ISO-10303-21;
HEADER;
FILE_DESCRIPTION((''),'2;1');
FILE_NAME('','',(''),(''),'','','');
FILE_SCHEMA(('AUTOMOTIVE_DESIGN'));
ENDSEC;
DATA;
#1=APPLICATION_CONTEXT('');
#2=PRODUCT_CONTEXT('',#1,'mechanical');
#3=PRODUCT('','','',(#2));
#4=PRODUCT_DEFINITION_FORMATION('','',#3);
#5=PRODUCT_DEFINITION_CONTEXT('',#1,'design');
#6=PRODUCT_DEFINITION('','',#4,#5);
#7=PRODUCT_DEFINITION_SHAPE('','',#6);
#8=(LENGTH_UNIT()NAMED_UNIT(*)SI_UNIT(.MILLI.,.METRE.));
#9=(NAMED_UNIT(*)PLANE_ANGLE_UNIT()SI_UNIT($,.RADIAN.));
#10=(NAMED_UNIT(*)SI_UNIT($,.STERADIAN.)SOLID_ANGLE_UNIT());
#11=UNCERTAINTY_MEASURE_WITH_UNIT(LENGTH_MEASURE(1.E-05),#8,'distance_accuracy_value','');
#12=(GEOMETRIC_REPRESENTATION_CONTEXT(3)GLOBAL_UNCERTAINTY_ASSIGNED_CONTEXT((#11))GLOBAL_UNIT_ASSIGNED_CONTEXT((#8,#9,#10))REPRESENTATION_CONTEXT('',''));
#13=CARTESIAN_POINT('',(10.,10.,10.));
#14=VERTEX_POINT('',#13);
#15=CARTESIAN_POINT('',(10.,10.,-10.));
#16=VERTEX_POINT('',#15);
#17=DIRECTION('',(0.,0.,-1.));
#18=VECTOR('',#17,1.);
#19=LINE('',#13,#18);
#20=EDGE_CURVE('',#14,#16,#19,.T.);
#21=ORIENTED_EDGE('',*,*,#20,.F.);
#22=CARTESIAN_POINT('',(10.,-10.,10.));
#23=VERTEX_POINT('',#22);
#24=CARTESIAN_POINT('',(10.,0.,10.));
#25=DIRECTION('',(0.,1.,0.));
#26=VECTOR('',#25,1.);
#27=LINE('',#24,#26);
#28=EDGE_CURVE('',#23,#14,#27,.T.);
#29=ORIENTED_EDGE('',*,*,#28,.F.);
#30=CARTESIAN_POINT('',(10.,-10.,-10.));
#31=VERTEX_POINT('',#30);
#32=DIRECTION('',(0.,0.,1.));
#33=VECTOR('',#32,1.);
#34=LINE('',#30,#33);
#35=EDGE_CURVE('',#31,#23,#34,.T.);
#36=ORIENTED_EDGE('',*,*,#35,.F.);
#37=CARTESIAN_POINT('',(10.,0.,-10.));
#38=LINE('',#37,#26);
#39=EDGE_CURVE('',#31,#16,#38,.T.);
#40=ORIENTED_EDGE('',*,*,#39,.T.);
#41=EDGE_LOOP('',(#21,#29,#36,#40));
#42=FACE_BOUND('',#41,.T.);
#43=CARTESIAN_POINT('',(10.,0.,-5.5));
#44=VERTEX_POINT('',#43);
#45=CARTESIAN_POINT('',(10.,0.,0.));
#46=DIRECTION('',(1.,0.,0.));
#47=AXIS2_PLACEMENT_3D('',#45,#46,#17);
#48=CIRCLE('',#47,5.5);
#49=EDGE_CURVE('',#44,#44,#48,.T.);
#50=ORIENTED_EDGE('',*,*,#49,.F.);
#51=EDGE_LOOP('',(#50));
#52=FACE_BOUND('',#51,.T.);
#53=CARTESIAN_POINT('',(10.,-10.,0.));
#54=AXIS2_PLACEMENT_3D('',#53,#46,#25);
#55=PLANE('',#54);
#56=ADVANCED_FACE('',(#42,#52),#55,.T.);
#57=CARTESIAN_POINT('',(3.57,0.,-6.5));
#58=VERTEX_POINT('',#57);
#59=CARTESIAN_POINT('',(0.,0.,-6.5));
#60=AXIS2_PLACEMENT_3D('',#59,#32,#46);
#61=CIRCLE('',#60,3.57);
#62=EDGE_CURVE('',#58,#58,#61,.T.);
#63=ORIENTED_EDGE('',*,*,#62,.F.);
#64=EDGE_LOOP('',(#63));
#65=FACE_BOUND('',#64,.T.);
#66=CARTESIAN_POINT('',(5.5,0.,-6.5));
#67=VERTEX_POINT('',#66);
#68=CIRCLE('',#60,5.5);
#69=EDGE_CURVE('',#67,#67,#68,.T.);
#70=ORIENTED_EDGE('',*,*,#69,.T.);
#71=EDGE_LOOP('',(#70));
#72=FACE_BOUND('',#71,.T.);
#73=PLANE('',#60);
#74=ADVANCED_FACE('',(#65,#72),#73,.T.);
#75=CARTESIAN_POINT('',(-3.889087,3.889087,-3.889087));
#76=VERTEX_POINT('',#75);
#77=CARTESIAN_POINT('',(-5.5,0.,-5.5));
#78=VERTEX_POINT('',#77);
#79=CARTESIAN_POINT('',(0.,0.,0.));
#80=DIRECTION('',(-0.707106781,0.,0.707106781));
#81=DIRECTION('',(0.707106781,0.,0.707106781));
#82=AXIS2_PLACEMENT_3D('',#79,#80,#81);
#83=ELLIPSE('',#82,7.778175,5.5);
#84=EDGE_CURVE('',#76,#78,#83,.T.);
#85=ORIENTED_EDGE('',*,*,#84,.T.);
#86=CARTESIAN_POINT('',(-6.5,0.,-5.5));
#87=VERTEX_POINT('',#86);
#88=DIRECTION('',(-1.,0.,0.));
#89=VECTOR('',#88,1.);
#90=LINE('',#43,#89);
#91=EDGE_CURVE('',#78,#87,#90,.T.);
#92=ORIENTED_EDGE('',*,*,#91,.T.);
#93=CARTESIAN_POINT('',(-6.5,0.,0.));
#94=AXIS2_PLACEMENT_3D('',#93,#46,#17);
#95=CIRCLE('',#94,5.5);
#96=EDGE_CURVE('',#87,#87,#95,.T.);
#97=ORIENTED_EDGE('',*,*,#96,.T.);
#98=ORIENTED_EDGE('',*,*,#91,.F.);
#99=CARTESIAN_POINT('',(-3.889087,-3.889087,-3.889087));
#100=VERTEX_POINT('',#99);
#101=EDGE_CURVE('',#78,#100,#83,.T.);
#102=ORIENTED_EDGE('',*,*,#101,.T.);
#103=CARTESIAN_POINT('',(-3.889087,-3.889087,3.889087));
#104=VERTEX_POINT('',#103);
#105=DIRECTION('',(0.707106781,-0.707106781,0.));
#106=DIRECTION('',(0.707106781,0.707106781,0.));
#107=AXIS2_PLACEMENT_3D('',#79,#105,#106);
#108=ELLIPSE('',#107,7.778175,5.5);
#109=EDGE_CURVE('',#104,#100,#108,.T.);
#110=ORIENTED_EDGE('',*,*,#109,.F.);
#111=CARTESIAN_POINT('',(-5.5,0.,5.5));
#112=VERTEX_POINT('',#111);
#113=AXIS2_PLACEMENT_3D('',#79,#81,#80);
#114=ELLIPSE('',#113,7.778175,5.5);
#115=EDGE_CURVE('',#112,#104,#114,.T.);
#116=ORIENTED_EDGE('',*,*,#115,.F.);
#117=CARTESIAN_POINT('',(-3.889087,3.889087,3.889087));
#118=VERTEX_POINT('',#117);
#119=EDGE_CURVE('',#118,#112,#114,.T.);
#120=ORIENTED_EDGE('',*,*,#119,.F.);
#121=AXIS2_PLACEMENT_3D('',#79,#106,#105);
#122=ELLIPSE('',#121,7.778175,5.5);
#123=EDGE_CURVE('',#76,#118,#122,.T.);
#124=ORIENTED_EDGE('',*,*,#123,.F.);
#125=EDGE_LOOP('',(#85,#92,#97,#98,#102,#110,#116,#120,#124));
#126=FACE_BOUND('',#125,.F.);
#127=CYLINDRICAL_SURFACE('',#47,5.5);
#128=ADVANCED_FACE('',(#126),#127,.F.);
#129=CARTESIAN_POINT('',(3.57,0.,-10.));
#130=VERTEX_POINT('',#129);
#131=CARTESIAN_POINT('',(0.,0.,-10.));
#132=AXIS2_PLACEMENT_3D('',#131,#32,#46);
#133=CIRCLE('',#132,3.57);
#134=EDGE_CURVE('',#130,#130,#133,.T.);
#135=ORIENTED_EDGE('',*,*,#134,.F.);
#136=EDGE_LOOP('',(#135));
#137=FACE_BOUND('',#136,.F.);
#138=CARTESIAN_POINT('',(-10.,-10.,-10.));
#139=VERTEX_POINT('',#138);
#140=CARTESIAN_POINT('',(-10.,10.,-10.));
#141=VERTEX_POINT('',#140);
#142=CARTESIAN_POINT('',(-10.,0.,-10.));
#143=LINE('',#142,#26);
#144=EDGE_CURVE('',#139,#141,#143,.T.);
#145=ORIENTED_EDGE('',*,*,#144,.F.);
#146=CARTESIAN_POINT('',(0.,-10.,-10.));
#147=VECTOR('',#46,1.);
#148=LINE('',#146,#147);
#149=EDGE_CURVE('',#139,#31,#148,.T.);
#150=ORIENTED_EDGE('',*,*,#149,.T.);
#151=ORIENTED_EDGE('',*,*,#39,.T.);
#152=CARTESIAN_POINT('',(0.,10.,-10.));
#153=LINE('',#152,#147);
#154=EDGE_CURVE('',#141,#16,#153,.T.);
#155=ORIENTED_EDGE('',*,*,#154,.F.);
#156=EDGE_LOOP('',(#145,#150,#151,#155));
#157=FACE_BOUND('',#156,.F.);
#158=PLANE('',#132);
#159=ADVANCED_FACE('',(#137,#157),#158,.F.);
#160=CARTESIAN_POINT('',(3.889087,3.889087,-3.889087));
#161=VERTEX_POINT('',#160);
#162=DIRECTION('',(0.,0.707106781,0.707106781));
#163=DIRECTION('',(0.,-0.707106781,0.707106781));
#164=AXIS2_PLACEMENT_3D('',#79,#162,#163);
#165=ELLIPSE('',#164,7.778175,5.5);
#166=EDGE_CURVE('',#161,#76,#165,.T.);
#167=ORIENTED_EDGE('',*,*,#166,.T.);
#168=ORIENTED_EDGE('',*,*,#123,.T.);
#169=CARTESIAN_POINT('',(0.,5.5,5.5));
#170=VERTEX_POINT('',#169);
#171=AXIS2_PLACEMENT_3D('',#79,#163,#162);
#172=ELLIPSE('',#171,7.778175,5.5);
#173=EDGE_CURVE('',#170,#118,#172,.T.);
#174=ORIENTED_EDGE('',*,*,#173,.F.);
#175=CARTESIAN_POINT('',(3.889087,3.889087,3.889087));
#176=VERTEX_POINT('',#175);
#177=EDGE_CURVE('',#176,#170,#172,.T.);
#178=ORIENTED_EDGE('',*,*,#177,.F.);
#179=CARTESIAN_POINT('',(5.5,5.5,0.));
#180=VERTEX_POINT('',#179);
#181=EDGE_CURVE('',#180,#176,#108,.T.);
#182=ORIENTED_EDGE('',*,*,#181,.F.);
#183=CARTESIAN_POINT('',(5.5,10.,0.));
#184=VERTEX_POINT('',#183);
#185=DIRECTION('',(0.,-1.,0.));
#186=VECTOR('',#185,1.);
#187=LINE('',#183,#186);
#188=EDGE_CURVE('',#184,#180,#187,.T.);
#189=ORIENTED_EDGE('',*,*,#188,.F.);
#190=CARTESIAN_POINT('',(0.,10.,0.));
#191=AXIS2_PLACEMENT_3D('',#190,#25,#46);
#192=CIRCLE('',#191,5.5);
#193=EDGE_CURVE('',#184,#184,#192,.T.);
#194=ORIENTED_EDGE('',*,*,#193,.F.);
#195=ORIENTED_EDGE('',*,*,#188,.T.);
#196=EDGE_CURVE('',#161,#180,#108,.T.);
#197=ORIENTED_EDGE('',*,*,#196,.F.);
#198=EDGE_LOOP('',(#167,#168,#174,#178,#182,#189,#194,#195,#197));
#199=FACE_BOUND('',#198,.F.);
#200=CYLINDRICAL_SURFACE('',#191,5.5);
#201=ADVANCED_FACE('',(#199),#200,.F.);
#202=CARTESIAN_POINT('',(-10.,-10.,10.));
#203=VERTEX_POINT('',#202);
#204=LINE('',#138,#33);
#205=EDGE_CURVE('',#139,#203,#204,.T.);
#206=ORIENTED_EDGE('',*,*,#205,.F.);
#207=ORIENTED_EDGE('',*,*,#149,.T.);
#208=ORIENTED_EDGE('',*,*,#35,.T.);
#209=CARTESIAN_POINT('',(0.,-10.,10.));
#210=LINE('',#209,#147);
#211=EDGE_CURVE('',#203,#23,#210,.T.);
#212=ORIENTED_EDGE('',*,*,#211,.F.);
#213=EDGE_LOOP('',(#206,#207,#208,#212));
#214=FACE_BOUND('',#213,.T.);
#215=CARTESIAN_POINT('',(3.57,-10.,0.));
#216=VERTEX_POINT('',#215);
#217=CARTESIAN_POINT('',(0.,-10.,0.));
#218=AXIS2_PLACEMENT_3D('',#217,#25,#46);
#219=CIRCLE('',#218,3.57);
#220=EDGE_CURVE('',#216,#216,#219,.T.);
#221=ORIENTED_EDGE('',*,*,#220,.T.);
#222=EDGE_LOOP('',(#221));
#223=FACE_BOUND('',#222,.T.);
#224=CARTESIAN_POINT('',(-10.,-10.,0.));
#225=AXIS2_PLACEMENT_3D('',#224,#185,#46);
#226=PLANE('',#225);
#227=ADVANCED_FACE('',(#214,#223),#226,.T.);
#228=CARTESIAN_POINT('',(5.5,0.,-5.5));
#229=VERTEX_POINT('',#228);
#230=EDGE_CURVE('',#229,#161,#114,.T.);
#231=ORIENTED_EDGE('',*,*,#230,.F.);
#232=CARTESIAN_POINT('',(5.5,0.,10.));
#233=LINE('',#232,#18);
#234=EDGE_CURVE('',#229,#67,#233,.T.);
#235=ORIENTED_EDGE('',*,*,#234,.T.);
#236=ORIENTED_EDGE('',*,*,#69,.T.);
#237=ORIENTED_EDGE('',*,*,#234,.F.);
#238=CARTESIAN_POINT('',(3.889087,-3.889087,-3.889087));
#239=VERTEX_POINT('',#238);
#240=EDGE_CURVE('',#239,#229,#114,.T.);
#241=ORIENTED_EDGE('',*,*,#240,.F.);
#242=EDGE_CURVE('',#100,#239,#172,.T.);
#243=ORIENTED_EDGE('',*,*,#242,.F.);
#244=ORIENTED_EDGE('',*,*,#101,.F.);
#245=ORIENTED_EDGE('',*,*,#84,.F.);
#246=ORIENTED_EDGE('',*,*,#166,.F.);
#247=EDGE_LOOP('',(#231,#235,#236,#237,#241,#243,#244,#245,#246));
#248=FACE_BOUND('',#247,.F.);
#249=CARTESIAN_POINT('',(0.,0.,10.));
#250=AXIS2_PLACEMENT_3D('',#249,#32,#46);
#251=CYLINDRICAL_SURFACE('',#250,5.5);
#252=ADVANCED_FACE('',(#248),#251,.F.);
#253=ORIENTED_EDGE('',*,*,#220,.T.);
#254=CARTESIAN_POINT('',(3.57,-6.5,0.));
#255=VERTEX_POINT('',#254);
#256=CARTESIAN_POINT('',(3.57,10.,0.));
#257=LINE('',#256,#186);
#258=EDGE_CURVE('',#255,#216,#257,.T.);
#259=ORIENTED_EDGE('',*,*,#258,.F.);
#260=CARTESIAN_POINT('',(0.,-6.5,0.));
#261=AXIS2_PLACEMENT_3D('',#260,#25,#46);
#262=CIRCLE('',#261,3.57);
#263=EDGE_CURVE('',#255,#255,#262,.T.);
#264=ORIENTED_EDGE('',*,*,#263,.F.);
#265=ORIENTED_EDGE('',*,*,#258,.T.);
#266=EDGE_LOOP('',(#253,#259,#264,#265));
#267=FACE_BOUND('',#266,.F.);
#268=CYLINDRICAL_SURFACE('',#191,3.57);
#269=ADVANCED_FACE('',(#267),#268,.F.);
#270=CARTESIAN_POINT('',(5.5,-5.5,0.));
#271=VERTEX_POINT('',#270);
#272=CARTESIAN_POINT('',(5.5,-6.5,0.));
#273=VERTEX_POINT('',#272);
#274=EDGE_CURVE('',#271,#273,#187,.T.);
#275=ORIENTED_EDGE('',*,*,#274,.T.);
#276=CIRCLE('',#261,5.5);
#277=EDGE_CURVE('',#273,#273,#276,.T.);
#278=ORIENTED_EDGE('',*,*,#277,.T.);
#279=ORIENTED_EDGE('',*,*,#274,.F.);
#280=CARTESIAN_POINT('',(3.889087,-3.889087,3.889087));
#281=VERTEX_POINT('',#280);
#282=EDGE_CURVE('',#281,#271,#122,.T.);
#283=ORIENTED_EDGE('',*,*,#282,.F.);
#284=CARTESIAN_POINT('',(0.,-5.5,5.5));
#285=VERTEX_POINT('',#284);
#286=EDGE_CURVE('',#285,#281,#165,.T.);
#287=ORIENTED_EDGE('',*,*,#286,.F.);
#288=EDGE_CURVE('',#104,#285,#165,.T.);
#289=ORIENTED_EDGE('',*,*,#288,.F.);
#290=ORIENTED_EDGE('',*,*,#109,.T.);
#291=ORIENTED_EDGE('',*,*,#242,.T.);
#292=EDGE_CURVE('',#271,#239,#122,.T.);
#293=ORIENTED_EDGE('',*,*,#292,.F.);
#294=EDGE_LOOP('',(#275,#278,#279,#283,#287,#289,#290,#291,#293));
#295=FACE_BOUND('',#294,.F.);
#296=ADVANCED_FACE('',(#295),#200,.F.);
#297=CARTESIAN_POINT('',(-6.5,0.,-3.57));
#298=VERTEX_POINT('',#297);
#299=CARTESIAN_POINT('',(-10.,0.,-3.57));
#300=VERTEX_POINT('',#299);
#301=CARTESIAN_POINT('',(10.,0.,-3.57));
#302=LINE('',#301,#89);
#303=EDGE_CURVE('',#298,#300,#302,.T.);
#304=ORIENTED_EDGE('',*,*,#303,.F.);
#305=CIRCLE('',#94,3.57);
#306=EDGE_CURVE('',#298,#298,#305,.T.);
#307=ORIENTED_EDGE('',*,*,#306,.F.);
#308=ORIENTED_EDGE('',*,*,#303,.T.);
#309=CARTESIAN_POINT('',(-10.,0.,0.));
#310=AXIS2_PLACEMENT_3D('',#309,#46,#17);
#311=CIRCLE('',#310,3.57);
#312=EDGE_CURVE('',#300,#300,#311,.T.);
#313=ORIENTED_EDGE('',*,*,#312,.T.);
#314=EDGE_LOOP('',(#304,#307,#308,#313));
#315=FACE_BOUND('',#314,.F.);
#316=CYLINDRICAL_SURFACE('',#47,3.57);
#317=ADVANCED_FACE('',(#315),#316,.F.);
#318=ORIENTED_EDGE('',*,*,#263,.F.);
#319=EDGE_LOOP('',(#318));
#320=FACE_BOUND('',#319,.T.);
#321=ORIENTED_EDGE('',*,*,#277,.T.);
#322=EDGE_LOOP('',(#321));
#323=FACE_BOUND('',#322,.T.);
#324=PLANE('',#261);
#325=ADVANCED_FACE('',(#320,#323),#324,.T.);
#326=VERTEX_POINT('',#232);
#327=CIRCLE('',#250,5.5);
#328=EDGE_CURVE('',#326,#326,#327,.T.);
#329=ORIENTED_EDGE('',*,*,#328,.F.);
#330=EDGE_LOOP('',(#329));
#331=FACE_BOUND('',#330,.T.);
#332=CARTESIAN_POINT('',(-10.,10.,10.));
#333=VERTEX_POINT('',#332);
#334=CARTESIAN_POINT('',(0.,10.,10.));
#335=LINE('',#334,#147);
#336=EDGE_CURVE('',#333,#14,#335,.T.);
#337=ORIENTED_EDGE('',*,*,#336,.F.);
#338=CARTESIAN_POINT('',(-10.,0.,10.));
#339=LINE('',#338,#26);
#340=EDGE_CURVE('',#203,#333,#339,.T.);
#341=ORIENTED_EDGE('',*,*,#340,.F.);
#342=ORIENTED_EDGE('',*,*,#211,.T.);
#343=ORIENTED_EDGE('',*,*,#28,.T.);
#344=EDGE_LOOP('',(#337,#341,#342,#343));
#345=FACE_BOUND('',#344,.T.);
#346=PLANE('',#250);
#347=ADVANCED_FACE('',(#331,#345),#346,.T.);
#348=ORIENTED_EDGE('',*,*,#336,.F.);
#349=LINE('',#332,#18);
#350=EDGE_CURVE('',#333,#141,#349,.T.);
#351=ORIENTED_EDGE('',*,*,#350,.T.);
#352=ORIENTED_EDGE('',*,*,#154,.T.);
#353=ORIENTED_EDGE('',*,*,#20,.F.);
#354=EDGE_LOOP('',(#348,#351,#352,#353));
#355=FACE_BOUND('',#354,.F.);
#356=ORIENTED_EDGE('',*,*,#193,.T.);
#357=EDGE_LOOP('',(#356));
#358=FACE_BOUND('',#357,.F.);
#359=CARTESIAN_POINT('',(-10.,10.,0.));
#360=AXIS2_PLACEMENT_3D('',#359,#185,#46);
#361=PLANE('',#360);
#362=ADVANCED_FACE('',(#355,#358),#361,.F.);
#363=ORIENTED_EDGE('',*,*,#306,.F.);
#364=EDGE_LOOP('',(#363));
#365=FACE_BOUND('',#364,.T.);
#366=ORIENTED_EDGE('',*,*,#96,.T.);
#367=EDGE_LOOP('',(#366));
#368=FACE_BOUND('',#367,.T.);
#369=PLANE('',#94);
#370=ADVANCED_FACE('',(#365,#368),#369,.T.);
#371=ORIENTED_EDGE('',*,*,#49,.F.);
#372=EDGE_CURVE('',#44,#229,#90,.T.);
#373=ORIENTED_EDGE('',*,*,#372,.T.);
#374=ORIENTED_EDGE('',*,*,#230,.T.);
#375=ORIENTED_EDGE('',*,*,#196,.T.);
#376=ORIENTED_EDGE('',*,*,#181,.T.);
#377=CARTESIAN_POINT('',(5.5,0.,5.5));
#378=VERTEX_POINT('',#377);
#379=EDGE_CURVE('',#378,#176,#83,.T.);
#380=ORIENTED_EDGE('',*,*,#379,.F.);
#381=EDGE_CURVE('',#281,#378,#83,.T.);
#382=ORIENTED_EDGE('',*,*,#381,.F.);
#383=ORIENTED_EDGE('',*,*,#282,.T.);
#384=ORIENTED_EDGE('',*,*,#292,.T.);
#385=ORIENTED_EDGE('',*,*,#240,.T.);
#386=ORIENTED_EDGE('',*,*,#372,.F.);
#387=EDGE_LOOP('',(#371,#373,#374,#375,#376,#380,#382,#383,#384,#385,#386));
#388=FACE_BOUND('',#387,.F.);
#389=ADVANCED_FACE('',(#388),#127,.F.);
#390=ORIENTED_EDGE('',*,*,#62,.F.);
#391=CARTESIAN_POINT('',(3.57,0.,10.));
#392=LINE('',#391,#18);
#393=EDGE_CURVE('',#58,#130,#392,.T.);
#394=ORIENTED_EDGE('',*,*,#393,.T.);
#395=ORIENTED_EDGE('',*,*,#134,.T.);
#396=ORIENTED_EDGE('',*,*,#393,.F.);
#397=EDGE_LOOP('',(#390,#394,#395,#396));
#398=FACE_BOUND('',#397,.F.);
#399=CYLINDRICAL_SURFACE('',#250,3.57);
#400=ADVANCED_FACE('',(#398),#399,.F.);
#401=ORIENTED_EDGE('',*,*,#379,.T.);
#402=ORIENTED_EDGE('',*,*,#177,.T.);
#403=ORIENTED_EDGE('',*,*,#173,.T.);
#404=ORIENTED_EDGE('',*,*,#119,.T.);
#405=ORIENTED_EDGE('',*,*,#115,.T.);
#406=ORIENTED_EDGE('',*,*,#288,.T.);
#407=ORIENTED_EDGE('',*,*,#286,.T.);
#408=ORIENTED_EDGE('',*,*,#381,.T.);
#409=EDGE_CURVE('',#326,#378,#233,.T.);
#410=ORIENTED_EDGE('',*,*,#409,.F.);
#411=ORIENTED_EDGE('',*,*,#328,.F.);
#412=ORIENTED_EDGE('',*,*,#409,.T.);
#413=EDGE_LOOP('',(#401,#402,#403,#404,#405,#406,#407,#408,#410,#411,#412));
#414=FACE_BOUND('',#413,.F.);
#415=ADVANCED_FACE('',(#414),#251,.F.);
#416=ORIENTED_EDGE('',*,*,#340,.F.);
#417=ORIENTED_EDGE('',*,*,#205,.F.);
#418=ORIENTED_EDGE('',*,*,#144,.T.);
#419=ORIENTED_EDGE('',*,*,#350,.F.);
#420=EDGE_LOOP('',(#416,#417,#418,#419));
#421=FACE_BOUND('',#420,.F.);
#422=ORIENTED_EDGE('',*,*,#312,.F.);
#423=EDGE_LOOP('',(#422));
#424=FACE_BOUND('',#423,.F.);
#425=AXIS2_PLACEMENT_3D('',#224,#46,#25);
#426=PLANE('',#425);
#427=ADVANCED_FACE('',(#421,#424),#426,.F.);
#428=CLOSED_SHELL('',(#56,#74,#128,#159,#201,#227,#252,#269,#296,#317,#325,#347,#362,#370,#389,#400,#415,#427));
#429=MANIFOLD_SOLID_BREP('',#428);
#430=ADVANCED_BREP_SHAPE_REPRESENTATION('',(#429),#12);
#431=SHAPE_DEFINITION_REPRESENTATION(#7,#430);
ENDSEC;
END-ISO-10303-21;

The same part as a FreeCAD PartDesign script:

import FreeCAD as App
import Part
import Sketcher

doc = App.newDocument("Part")
body = doc.addObject("PartDesign::Body", "Body")

# Sketch on XY plane
sketch1 = body.newObject("Sketcher::SketchObject", "Sketch")
sketch1.AttachmentSupport = (doc.getObject("XY_Plane"), [""])
sketch1.MapMode = "FlatFace"
sketch1.addGeometry([
    Part.LineSegment(App.Vector(-10, 10, 0), App.Vector(-10, -10, 0)),
    Part.LineSegment(App.Vector(-10, -10, 0), App.Vector(10, -10, 0)),
    Part.LineSegment(App.Vector(10, -10, 0), App.Vector(10, 10, 0)),
    Part.LineSegment(App.Vector(10, 10, 0), App.Vector(-10, 10, 0)),
], False)
sketch1.addConstraint([
    Sketcher.Constraint("Coincident", 0, 2, 1, 1),
    Sketcher.Constraint("Coincident", 1, 2, 2, 1),
    Sketcher.Constraint("Coincident", 2, 2, 3, 1),
    Sketcher.Constraint("Coincident", 3, 2, 0, 1),
    Sketcher.Constraint("Vertical", 0),
    Sketcher.Constraint("Horizontal", 1),
    Sketcher.Constraint("Vertical", 2),
    Sketcher.Constraint("Horizontal", 3),
    Sketcher.Constraint("Symmetric", 0, 2, 2, 2, -1, 1),
    Sketcher.Constraint("Equal", 3, 0),
    Sketcher.Constraint("DistanceX", 1, 1, 1, 2, 20.0),
])
pad1 = body.newObject("PartDesign::Pad", "Pad")
pad1.Profile = sketch1
pad1.Length = 20
pad1.Midplane = True

# Sketch on XY plane
sketch2 = body.newObject("Sketcher::SketchObject", "Sketch001")
sketch2.AttachmentSupport = (doc.getObject("XY_Plane"), [""])
sketch2.MapMode = "FlatFace"
sketch2.AttachmentOffset = App.Placement(App.Vector(0, 0, 10), App.Rotation())
sketch2.addGeometry(Part.Circle(App.Vector(0, 0, 0), App.Vector(0, 0, 1), 3.57), False)
sketch2.addConstraint([
    Sketcher.Constraint("Coincident", 0, 3, -1, 1),
    Sketcher.Constraint("Diameter", 0, 7.14),
])
pocket1 = body.newObject("PartDesign::Pocket", "Pocket")
pocket1.Profile = sketch2
pocket1.Type = "ThroughAll"

# Sketch on XY plane
sketch3 = body.newObject("Sketcher::SketchObject", "Sketch002")
sketch3.AttachmentSupport = (doc.getObject("XY_Plane"), [""])
sketch3.MapMode = "FlatFace"
sketch3.AttachmentOffset = App.Placement(App.Vector(0, 0, 10), App.Rotation())
sketch3.addGeometry(Part.Circle(App.Vector(0, 0, 0), App.Vector(0, 0, 1), 5.5), False)
sketch3.addConstraint([
    Sketcher.Constraint("Coincident", 0, 3, -1, 1),
    Sketcher.Constraint("Diameter", 0, 11.0),
])
pocket2 = body.newObject("PartDesign::Pocket", "Pocket001")
pocket2.Profile = sketch3
pocket2.Length = 16.5

# Sketch on YZ plane
sketch4 = body.newObject("Sketcher::SketchObject", "Sketch003")
sketch4.AttachmentSupport = (doc.getObject("YZ_Plane"), [""])
sketch4.MapMode = "FlatFace"
sketch4.AttachmentOffset = App.Placement(App.Vector(0, 0, 10), App.Rotation())
sketch4.addGeometry(Part.Circle(App.Vector(0, 0, 0), App.Vector(0, 0, 1), 3.57), False)
sketch4.addConstraint([
    Sketcher.Constraint("Coincident", 0, 3, -1, 1),
    Sketcher.Constraint("Diameter", 0, 7.14),
])
pocket3 = body.newObject("PartDesign::Pocket", "Pocket002")
pocket3.Profile = sketch4
pocket3.Type = "ThroughAll"

# Sketch on YZ plane
sketch5 = body.newObject("Sketcher::SketchObject", "Sketch004")
sketch5.AttachmentSupport = (doc.getObject("YZ_Plane"), [""])
sketch5.MapMode = "FlatFace"
sketch5.AttachmentOffset = App.Placement(App.Vector(0, 0, 10), App.Rotation())
sketch5.addGeometry(Part.Circle(App.Vector(0, 0, 0), App.Vector(0, 0, 1), 5.5), False)
sketch5.addConstraint([
    Sketcher.Constraint("Coincident", 0, 3, -1, 1),
    Sketcher.Constraint("Diameter", 0, 11.0),
])
pocket4 = body.newObject("PartDesign::Pocket", "Pocket003")
pocket4.Profile = sketch5
pocket4.Length = 16.5

# Sketch on XZ plane
sketch6 = body.newObject("Sketcher::SketchObject", "Sketch005")
sketch6.AttachmentSupport = (doc.getObject("XZ_Plane"), [""])
sketch6.MapMode = "FlatFace"
sketch6.AttachmentOffset = App.Placement(App.Vector(0, 0, -10), App.Rotation())
sketch6.addGeometry(Part.Circle(App.Vector(0, 0, 0), App.Vector(0, 0, 1), 3.57), False)
sketch6.addConstraint([
    Sketcher.Constraint("Coincident", 0, 3, -1, 1),
    Sketcher.Constraint("Diameter", 0, 7.14),
])
pocket5 = body.newObject("PartDesign::Pocket", "Pocket004")
pocket5.Profile = sketch6
pocket5.Type = "ThroughAll"
pocket5.Reversed = True

# Sketch on XZ plane
sketch7 = body.newObject("Sketcher::SketchObject", "Sketch006")
sketch7.AttachmentSupport = (doc.getObject("XZ_Plane"), [""])
sketch7.MapMode = "FlatFace"
sketch7.AttachmentOffset = App.Placement(App.Vector(0, 0, -10), App.Rotation())
sketch7.addGeometry(Part.Circle(App.Vector(0, 0, 0), App.Vector(0, 0, 1), 5.5), False)
sketch7.addConstraint([
    Sketcher.Constraint("Coincident", 0, 3, -1, 1),
    Sketcher.Constraint("Diameter", 0, 11.0),
])
pocket6 = body.newObject("PartDesign::Pocket", "Pocket005")
pocket6.Profile = sketch7
pocket6.Length = 16.5
pocket6.Reversed = True

doc.recompute()
